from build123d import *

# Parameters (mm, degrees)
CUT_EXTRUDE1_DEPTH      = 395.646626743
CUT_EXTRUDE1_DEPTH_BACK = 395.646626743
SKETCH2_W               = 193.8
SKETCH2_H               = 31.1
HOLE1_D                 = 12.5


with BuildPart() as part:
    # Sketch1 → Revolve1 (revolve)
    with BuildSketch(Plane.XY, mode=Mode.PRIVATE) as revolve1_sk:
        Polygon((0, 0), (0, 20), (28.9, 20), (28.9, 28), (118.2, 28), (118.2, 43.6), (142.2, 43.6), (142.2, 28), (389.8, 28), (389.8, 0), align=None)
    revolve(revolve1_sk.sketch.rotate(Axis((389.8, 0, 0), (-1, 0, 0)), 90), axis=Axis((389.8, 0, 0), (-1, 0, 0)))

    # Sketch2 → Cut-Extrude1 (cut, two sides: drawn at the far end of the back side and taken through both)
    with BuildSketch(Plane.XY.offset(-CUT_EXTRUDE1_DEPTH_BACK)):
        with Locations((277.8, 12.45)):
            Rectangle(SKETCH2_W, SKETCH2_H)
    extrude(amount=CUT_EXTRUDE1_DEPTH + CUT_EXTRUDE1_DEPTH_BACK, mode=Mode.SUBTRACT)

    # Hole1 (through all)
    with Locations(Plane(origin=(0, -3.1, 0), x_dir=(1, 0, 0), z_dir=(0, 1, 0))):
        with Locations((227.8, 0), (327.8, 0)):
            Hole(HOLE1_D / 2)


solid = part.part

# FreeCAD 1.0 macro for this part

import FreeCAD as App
import Part
import Sketcher

V = App.Vector
Q = App.Units.Quantity


def add_polygon(sketch, points):
    """Adds a closed chain of lines whose ends are joined by coincident constraints."""
    first, n = sketch.GeometryCount, len(points)
    for a, b in zip(points, points[1:] + points[:1]):
        sketch.addGeometry(Part.LineSegment(App.Vector(*a, 0), App.Vector(*b, 0)), False)
    for i in range(n):
        sketch.addConstraint(Sketcher.Constraint("Coincident", first + i, 2, first + (i + 1) % n, 1))

doc = App.newDocument("Part")
body = doc.addObject("PartDesign::Body", "Body")

sketch1 = doc.addObject("Sketcher::SketchObject", "Sketch")
body.addObject(sketch1)
sketch1.AttachmentSupport = (doc.XY_Plane, [""])
sketch1.MapMode = "FlatFace"
add_polygon(sketch1, [(0, 20), (0, 0), (390, 0), (390, 28), (142, 28), (142, 44), (118, 44), (118, 28), (29, 28), (29, 20)])
sketch1.addConstraint([
    Sketcher.Constraint("Vertical", 0),
    Sketcher.Constraint("Horizontal", 1),
    Sketcher.Constraint("Vertical", 2),
    Sketcher.Constraint("Horizontal", 3),
    Sketcher.Constraint("Vertical", 4),
    Sketcher.Constraint("Horizontal", 5),
    Sketcher.Constraint("Vertical", 6),
    Sketcher.Constraint("Horizontal", 7),
    Sketcher.Constraint("Vertical", 8),
    Sketcher.Constraint("Horizontal", 9),
    Sketcher.Constraint("Coincident", 0, 2, -1, 1),
    Sketcher.Constraint("Horizontal", 3, 2, 6, 2),
    Sketcher.Constraint("DistanceX", 5, 2, 5, 1, Q("24 mm")),
    Sketcher.Constraint("DistanceY", 0, 2, 0, 1, Q("20 mm")),
    Sketcher.Constraint("DistanceY", 2, 1, 2, 2, Q("28 mm")),
    Sketcher.Constraint("DistanceX", 1, 1, 1, 2, Q("389.8 mm")),
    Sketcher.Constraint("DistanceX", 3, 2, 3, 1, Q("247.6 mm")),
    Sketcher.Constraint("DistanceX", 7, 2, 7, 1, Q("89.3 mm")),
    Sketcher.Constraint("DistanceY", 4, 1, 4, 2, Q("15.6 mm")),
])
revolution = doc.addObject("PartDesign::Revolution", "Revolution")
body.addObject(revolution)
revolution.Profile = sketch1
revolution.ReferenceAxis = (sketch1, ["H_Axis"])
revolution.Angle = 360

sketch2 = doc.addObject("Sketcher::SketchObject", "Sketch001")
body.addObject(sketch2)
sketch2.AttachmentSupport = (doc.XY_Plane, [""])
sketch2.MapMode = "FlatFace"
add_polygon(sketch2, [(181, 28), (181, -3), (375, -3), (375, 28)])
sketch2.addConstraint([
    Sketcher.Constraint("Vertical", 0),
    Sketcher.Constraint("Horizontal", 1),
    Sketcher.Constraint("Vertical", 2),
    Sketcher.Constraint("Horizontal", 3),
    Sketcher.Constraint("DistanceX", 1, 1, 1, 2, Q("193.8 mm")),
    Sketcher.Constraint("DistanceY", 0, 2, 0, 1, Q("31.1 mm")),
    Sketcher.Constraint("DistanceY", -1, 1, 2, 2, Q("28 mm")),
    Sketcher.Constraint("DistanceX", -1, 1, 0, 2, Q("180.9 mm")),
])
pocket1 = doc.addObject("PartDesign::Pocket", "Pocket")
body.addObject(pocket1)
pocket1.Profile = sketch2
pocket1.Type = "ThroughAll"
pocket1.Midplane = True

sketch3 = doc.addObject("Sketcher::SketchObject", "Sketch002")
body.addObject(sketch3)
sketch3.AttachmentSupport = (doc.XZ_Plane, [""])
sketch3.MapMode = "FlatFace"
sketch3.AttachmentOffset = App.Placement(V(0, 0, 3.1), App.Rotation())
sketch3.addGeometry([
    Part.Circle(V(228, 0, 0), V(0, 0, 1), 6),
    Part.Circle(V(328, 0, 0), V(0, 0, 1), 6),
], False)
sketch3.addConstraint([
    Sketcher.Constraint("Equal", 0, 1),
    Sketcher.Constraint("PointOnObject", 0, 3, -1),
    Sketcher.Constraint("PointOnObject", 1, 3, -1),
    Sketcher.Constraint("Diameter", 0, Q("12.5 mm")),
    Sketcher.Constraint("DistanceX", 0, 3, 1, 3, Q("100 mm")),
    Sketcher.Constraint("DistanceX", -1, 1, 0, 3, Q("227.8 mm")),
])
doc.recompute()
hole = doc.addObject("PartDesign::Hole", "Hole")
body.addObject(hole)
hole.Profile = sketch3
hole.ThreadType = "None"
hole.Diameter = 12.5
hole.DepthType = "ThroughAll"
hole.Reversed = True

doc.recompute()
